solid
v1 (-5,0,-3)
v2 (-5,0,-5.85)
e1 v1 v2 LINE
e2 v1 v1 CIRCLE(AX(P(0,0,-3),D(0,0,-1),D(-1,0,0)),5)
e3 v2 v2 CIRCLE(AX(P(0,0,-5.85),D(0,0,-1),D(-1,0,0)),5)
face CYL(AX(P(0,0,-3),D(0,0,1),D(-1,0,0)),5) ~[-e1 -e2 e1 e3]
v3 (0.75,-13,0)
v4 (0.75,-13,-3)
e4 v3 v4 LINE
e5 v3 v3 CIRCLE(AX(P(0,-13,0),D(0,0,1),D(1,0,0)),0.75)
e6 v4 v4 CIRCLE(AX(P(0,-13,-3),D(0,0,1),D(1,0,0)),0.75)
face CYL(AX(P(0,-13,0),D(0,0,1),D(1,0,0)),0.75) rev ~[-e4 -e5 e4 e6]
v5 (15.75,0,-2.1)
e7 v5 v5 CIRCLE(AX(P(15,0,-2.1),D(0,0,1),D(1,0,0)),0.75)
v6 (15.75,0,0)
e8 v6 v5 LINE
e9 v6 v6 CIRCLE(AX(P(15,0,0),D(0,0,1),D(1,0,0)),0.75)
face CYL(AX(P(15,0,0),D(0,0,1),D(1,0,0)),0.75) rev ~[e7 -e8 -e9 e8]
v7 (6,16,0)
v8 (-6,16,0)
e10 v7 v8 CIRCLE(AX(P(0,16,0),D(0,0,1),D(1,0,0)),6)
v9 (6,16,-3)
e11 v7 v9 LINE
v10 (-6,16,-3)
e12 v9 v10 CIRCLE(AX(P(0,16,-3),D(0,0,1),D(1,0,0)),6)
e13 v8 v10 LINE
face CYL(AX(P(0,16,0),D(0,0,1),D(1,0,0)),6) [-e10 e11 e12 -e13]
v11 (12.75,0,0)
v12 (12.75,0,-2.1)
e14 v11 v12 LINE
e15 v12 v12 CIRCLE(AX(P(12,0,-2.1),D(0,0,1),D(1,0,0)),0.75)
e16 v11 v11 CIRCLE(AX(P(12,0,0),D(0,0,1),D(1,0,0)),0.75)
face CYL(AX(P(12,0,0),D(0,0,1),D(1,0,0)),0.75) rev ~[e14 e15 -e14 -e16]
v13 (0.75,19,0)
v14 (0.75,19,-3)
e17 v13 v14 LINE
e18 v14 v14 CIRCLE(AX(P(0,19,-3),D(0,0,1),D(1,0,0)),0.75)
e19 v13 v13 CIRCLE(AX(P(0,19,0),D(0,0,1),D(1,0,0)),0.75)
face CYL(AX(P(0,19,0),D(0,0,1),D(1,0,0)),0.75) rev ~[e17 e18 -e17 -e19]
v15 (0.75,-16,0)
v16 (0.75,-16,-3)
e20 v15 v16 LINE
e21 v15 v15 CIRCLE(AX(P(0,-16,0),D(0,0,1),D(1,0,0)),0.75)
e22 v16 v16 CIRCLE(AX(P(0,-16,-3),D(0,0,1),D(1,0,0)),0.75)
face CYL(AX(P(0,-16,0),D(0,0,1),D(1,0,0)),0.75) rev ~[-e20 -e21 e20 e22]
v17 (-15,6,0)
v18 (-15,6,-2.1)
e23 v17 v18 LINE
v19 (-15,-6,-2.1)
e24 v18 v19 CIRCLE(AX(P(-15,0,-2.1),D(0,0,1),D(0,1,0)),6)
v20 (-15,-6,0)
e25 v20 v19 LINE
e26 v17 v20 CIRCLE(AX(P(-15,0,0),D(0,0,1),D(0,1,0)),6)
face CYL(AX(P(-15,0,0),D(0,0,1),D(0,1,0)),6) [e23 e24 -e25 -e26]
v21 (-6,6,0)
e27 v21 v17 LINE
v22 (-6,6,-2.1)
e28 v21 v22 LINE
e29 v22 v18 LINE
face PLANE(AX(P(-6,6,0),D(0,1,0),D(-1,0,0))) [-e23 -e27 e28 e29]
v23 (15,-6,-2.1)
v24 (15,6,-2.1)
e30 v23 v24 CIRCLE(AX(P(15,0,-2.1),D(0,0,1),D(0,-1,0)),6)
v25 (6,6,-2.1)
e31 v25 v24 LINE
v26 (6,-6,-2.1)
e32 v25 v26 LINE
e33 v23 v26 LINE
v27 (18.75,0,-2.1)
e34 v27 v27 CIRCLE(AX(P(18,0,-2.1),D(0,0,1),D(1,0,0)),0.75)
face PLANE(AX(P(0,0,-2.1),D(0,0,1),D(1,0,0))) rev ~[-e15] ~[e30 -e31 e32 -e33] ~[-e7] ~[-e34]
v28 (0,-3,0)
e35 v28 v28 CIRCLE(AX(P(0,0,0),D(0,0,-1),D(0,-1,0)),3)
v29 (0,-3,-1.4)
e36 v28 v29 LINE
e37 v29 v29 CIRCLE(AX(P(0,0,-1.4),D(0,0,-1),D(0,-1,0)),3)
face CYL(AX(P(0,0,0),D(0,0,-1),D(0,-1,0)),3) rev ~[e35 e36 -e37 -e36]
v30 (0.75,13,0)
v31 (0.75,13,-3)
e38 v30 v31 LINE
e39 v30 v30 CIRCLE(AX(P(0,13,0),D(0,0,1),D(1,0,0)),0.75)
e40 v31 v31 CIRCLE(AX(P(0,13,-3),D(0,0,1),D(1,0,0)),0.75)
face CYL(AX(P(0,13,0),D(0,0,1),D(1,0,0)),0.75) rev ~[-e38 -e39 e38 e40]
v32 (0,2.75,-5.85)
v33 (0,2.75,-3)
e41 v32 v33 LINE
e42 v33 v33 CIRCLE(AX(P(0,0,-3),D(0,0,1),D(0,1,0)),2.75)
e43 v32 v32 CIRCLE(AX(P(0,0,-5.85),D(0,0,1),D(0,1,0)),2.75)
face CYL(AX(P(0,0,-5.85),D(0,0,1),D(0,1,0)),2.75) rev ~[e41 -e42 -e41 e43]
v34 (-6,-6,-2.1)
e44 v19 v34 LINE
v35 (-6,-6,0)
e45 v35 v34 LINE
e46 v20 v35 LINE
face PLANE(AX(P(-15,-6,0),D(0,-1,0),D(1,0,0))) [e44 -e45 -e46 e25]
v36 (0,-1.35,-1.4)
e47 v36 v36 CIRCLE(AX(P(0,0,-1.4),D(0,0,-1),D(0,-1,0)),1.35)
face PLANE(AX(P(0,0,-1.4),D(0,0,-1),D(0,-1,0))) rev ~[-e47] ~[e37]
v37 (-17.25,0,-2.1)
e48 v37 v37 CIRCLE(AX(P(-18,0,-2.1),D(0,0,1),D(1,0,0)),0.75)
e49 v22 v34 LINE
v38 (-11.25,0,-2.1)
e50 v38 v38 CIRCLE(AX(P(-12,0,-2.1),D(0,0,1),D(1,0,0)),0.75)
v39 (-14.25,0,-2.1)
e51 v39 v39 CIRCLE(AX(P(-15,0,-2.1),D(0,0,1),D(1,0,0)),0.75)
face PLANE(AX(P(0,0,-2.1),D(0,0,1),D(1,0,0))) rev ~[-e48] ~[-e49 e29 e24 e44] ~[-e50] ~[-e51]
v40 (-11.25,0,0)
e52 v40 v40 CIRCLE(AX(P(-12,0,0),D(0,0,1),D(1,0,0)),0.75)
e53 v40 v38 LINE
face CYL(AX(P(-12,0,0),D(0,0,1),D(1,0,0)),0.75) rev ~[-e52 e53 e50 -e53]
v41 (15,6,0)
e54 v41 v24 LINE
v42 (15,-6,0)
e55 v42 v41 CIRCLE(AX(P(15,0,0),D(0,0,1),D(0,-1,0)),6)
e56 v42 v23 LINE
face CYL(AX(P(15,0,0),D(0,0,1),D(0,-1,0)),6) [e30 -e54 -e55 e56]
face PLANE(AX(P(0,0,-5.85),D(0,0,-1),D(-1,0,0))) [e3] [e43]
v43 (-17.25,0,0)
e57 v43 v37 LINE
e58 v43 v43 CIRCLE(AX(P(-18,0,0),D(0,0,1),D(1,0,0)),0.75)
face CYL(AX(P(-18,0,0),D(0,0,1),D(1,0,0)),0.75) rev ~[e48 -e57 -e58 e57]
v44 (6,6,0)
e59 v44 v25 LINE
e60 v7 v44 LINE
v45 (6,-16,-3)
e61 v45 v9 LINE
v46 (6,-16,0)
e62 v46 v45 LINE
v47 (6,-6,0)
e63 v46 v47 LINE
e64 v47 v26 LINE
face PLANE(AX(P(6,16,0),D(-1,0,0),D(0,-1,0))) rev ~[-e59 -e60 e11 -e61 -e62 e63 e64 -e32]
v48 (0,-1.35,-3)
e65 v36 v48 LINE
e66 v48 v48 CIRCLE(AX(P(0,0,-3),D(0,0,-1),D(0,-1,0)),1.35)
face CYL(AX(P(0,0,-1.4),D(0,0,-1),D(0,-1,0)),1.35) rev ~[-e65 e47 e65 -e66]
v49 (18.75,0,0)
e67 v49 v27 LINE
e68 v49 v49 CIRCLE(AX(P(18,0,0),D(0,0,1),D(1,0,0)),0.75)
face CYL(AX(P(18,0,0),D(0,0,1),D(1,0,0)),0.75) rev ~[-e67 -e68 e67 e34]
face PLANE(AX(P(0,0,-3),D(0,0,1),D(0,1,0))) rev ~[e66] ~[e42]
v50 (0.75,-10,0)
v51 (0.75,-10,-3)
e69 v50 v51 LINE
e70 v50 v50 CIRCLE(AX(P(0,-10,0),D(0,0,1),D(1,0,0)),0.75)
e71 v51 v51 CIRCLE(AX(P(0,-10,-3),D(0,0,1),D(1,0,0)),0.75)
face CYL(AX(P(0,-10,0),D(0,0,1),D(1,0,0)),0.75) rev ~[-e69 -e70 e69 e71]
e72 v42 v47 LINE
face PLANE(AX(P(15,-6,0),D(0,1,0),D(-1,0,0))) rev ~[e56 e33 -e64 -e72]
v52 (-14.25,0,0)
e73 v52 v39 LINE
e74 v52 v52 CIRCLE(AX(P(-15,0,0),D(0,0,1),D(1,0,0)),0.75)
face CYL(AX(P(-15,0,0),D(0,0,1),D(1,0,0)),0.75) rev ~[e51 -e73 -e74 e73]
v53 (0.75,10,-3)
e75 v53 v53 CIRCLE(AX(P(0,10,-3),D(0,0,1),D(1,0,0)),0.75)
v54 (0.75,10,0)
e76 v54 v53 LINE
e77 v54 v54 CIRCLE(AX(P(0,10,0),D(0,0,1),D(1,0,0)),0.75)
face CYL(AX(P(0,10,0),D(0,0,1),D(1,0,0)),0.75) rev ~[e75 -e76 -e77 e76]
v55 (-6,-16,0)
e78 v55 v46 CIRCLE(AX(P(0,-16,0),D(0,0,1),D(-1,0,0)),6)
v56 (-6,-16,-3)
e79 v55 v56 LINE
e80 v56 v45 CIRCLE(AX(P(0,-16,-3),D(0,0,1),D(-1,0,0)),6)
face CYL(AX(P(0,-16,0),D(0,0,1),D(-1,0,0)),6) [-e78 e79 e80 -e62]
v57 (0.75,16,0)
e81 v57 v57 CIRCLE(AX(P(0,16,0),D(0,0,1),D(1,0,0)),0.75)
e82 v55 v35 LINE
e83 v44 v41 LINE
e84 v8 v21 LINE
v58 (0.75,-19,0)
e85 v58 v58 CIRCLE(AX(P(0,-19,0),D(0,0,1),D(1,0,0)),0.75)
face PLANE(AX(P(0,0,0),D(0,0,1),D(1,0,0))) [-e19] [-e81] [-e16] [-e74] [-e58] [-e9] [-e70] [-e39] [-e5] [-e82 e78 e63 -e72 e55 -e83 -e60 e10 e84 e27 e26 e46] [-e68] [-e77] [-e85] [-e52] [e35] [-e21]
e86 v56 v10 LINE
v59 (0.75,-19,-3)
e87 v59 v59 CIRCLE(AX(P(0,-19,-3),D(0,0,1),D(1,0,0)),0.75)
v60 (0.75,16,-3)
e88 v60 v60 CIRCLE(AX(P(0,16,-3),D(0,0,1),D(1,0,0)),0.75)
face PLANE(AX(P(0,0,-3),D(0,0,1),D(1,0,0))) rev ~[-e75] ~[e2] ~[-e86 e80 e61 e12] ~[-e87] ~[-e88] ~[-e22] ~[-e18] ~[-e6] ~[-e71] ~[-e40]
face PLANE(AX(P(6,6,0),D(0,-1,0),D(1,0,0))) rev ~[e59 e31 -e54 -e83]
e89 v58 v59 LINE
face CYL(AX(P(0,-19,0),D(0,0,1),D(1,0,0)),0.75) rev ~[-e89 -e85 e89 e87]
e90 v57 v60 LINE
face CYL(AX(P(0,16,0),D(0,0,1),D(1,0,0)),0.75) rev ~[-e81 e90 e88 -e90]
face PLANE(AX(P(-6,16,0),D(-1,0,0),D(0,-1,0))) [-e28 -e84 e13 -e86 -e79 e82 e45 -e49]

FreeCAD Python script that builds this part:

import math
import FreeCAD as App
import Part
import Sketcher
from FreeCAD import Vector
Q = App.Units.Quantity

doc = App.newDocument("Part")
body = doc.addObject("PartDesign::Body", "Body")

sketch1 = body.newObject("Sketcher::SketchObject", "Sketch")
sketch1.AttachmentSupport = (doc.getObject("XY_Plane"), [""])
sketch1.MapMode = "FlatFace"
sketch1.addGeometry([
    Part.LineSegment(Vector(6, -16, 0), Vector(6, 16, 0)),
    Part.ArcOfCircle(Part.Circle(Vector(0, 16, 0), Vector(0, 0, 1), 6), math.radians(0), math.radians(180)),
    Part.LineSegment(Vector(-6, 16, 0), Vector(-6, -16, 0)),
    Part.ArcOfCircle(Part.Circle(Vector(0, -16, 0), Vector(0, 0, 1), 6), math.radians(180), math.radians(360)),
    Part.Circle(Vector(0, -19, 0), Vector(0, 0, 1), 0.8),
    Part.Circle(Vector(0, -16, 0), Vector(0, 0, 1), 0.8),
    Part.Circle(Vector(0, -13, 0), Vector(0, 0, 1), 0.8),
    Part.Circle(Vector(0, -10, 0), Vector(0, 0, 1), 0.8),
    Part.Circle(Vector(0, 10, 0), Vector(0, 0, 1), 0.8),
    Part.Circle(Vector(0, 13, 0), Vector(0, 0, 1), 0.8),
    Part.Circle(Vector(0, 16, 0), Vector(0, 0, 1), 0.8),
    Part.Circle(Vector(0, 19, 0), Vector(0, 0, 1), 0.8),
], False)
sketch1.addConstraint([
    Sketcher.Constraint("Tangent", 0, 2, 1, 1),
    Sketcher.Constraint("Tangent", 1, 2, 2, 1),
    Sketcher.Constraint("Tangent", 2, 2, 3, 1),
    Sketcher.Constraint("Tangent", 3, 2, 0, 1),
    Sketcher.Constraint("Vertical", 0),
    Sketcher.Constraint("Vertical", 2),
    Sketcher.Constraint("Coincident", 5, 3, 3, 3),
    Sketcher.Constraint("Coincident", 10, 3, 1, 3),
    Sketcher.Constraint("Equal", 4, 5),
    Sketcher.Constraint("Equal", 5, 6),
    Sketcher.Constraint("Equal", 6, 7),
    Sketcher.Constraint("Equal", 7, 8),
    Sketcher.Constraint("Equal", 8, 9),
    Sketcher.Constraint("Equal", 9, 10),
    Sketcher.Constraint("Equal", 10, 11),
    Sketcher.Constraint("Symmetric", 1, 3, 3, 3, -1, 1),
    Sketcher.Constraint("Symmetric", 7, 3, 8, 3, -1, 1),
    Sketcher.Constraint("Symmetric", 6, 3, 9, 3, -1, 1),
    Sketcher.Constraint("Symmetric", 4, 3, 11, 3, -1, 1),
    Sketcher.Constraint("PointOnObject", 4, 3, -2),
    Sketcher.Constraint("PointOnObject", 6, 3, -2),
    Sketcher.Constraint("PointOnObject", 7, 3, -2),
    Sketcher.Constraint("Radius", 1, Q("6 mm")),
    Sketcher.Constraint("Diameter", 4, Q("1.5 mm")),
    Sketcher.Constraint("DistanceY", -1, 1, 1, 3, Q("16 mm")),
    Sketcher.Constraint("DistanceY", 4, 3, -1, 1, Q("19 mm")),
    Sketcher.Constraint("DistanceY", 6, 3, -1, 1, Q("13 mm")),
    Sketcher.Constraint("DistanceY", 7, 3, -1, 1, Q("10 mm")),
])
pad1 = body.newObject("PartDesign::Pad", "Pad")
pad1.Profile = sketch1
pad1.Length = 3
pad1.Reversed = True

sketch2 = body.newObject("Sketcher::SketchObject", "Sketch001")
sketch2.AttachmentSupport = (doc.getObject("XY_Plane"), [""])
sketch2.MapMode = "FlatFace"
sketch2.addGeometry([
    Part.LineSegment(Vector(15, 6, 0), Vector(6, 6, 0)),
    Part.LineSegment(Vector(6, 6, 0), Vector(6, -6, 0)),
    Part.LineSegment(Vector(6, -6, 0), Vector(15, -6, 0)),
    Part.ArcOfCircle(Part.Circle(Vector(15, 0, 0), Vector(0, 0, 1), 6), math.radians(-90), math.radians(90)),
    Part.Circle(Vector(12, 0, 0), Vector(0, 0, 1), 0.8),
    Part.Circle(Vector(15, 0, 0), Vector(0, 0, 1), 0.8),
    Part.Circle(Vector(18, 0, 0), Vector(0, 0, 1), 0.8),
    Part.LineSegment(Vector(-6, -6, 0), Vector(-6, 6, 0)),
    Part.LineSegment(Vector(-6, 6, 0), Vector(-15, 6, 0)),
    Part.ArcOfCircle(Part.Circle(Vector(-15, 0, 0), Vector(0, 0, 1), 6), math.radians(90), math.radians(270)),
    Part.LineSegment(Vector(-15, -6, 0), Vector(-6, -6, 0)),
    Part.Circle(Vector(-18, 0, 0), Vector(0, 0, 1), 0.8),
    Part.Circle(Vector(-15, 0, 0), Vector(0, 0, 1), 0.8),
    Part.Circle(Vector(-12, 0, 0), Vector(0, 0, 1), 0.8),
], False)
sketch2.addConstraint([
    Sketcher.Constraint("Coincident", 0, 2, 1, 1),
    Sketcher.Constraint("Coincident", 1, 2, 2, 1),
    Sketcher.Constraint("Tangent", 2, 2, 3, 1),
    Sketcher.Constraint("Tangent", 3, 2, 0, 1),
    Sketcher.Constraint("Coincident", 7, 2, 8, 1),
    Sketcher.Constraint("Tangent", 8, 2, 9, 1),
    Sketcher.Constraint("Tangent", 9, 2, 10, 1),
    Sketcher.Constraint("Coincident", 10, 2, 7, 1),
    Sketcher.Constraint("Horizontal", 0),
    Sketcher.Constraint("Vertical", 1),
    Sketcher.Constraint("Horizontal", 2),
    Sketcher.Constraint("Vertical", 7),
    Sketcher.Constraint("Horizontal", 8),
    Sketcher.Constraint("Horizontal", 10),
    Sketcher.Constraint("Coincident", 5, 3, 3, 3),
    Sketcher.Constraint("Coincident", 12, 3, 9, 3),
    Sketcher.Constraint("Equal", 4, 5),
    Sketcher.Constraint("Equal", 5, 6),
    Sketcher.Constraint("Equal", 3, 9),
    Sketcher.Constraint("Equal", 6, 11),
    Sketcher.Constraint("Equal", 11, 12),
    Sketcher.Constraint("Equal", 12, 13),
    Sketcher.Constraint("Symmetric", 3, 3, 9, 3, -1, 1),
    Sketcher.Constraint("Symmetric", 6, 3, 11, 3, -1, 1),
    Sketcher.Constraint("Symmetric", 4, 3, 13, 3, -1, 1),
    Sketcher.Constraint("Symmetric", 0, 2, 7, 2, -2),
    Sketcher.Constraint("PointOnObject", 4, 3, -1),
    Sketcher.Constraint("PointOnObject", 6, 3, -1),
    Sketcher.Constraint("Radius", 3, Q("6 mm")),
    Sketcher.Constraint("Diameter", 4, Q("1.5 mm")),
    Sketcher.Constraint("DistanceX", -1, 1, 3, 3, Q("15 mm")),
    Sketcher.Constraint("DistanceX", -1, 1, 4, 3, Q("12 mm")),
    Sketcher.Constraint("DistanceX", -1, 1, 6, 3, Q("18 mm")),
    Sketcher.Constraint("DistanceX", -1, 1, 0, 2, Q("6 mm")),
])
pad2 = body.newObject("PartDesign::Pad", "Pad001")
pad2.Profile = sketch2
pad2.Length = 2.1
pad2.Reversed = True

sketch3 = body.newObject("Sketcher::SketchObject", "Sketch002")
sketch3.AttachmentSupport = (doc.getObject("XY_Plane"), [""])
sketch3.MapMode = "FlatFace"
sketch3.AttachmentOffset = App.Placement(Vector(0, 0, -3), App.Rotation())
sketch3.addGeometry(Part.Circle(Vector(0, 0, 0), Vector(0, 0, 1), 5), False)
sketch3.addConstraint([
    Sketcher.Constraint("Coincident", 0, 3, -1, 1),
    Sketcher.Constraint("Diameter", 0, Q("10 mm")),
])
pad3 = body.newObject("PartDesign::Pad", "Pad002")
pad3.Profile = sketch3
pad3.Length = 2.85
pad3.Reversed = True

sketch4 = body.newObject("Sketcher::SketchObject", "Sketch003")
sketch4.AttachmentSupport = (doc.getObject("XY_Plane"), [""])
sketch4.MapMode = "FlatFace"
sketch4.AttachmentOffset = App.Placement(Vector(0, 0, -5.85), App.Rotation())
sketch4.addGeometry(Part.Circle(Vector(0, 0, 0), Vector(0, 0, 1), 2.8), False)
sketch4.addConstraint([
    Sketcher.Constraint("Coincident", 0, 3, -1, 1),
    Sketcher.Constraint("Diameter", 0, Q("5.5 mm")),
])
doc.recompute()
hole = body.newObject("PartDesign::Hole", "Hole")
hole.Profile = sketch4
hole.ThreadType = "None"
hole.Diameter = 5.5
hole.DepthType = "Dimension"
hole.Depth = 2.85
hole.DrillPoint = "Flat"
hole.Reversed = True

sketch5 = body.newObject("Sketcher::SketchObject", "Sketch004")
sketch5.AttachmentSupport = (doc.getObject("XY_Plane"), [""])
sketch5.MapMode = "FlatFace"
sketch5.addGeometry(Part.Circle(Vector(0, 0, 0), Vector(0, 0, 1), 3), False)
sketch5.addConstraint([
    Sketcher.Constraint("Coincident", 0, 3, -1, 1),
    Sketcher.Constraint("Diameter", 0, Q("6 mm")),
])
doc.recompute()
hole2 = body.newObject("PartDesign::Hole", "Hole001")
hole2.Profile = sketch5
hole2.ThreadType = "None"
hole2.Diameter = 6
hole2.DepthType = "Dimension"
hole2.Depth = 1.4
hole2.DrillPoint = "Flat"

sketch6 = body.newObject("Sketcher::SketchObject", "Sketch005")
sketch6.AttachmentSupport = (doc.getObject("XY_Plane"), [""])
sketch6.MapMode = "FlatFace"
sketch6.AttachmentOffset = App.Placement(Vector(0, 0, -1.4), App.Rotation())
sketch6.addGeometry(Part.Circle(Vector(0, 0, 0), Vector(0, 0, 1), 1.4), False)
sketch6.addConstraint([
    Sketcher.Constraint("Coincident", 0, 3, -1, 1),
    Sketcher.Constraint("Diameter", 0, Q("2.7 mm")),
])
doc.recompute()
hole3 = body.newObject("PartDesign::Hole", "Hole002")
hole3.Profile = sketch6
hole3.ThreadType = "None"
hole3.Diameter = 2.7
hole3.DepthType = "ThroughAll"

doc.recompute()
